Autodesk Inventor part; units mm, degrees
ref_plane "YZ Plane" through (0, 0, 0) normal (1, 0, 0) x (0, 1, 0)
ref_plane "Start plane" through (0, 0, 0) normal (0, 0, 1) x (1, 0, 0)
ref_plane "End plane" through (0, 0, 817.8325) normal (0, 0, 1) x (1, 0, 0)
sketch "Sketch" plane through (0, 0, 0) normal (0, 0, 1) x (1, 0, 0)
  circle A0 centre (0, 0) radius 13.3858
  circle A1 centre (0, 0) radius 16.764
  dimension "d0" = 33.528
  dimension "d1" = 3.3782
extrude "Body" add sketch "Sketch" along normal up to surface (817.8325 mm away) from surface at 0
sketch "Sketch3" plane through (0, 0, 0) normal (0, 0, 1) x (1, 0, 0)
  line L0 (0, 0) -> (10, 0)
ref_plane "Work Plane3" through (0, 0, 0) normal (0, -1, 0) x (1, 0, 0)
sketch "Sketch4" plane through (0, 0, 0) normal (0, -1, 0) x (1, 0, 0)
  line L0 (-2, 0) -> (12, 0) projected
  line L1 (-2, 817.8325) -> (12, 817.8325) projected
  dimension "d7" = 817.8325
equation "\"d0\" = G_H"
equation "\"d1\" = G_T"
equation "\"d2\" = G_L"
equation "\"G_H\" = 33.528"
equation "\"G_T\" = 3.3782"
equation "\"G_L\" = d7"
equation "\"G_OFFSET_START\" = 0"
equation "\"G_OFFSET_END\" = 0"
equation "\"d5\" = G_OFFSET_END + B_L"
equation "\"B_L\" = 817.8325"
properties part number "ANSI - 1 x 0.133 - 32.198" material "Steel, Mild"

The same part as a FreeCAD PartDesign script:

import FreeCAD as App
import Part
import Sketcher
from FreeCAD import Vector
Q = App.Units.Quantity

doc = App.newDocument("Part")
body = doc.addObject("PartDesign::Body", "Body")

sketch1 = body.newObject("Sketcher::SketchObject", "Sketch")
sketch1.AttachmentSupport = (doc.getObject("XY_Plane"), [""])
sketch1.MapMode = "FlatFace"
sketch1.addGeometry([
    Part.Circle(Vector(0, 0, 0), Vector(0, 0, 1), 17),
    Part.Circle(Vector(0, 0, 0), Vector(0, 0, 1), 13),
], False)
sketch1.addConstraint([
    Sketcher.Constraint("Coincident", 0, 3, -1, 1),
    Sketcher.Constraint("Coincident", 1, 3, -1, 1),
    Sketcher.Constraint("Diameter", 0, Q("1.32 in")),
    Sketcher.Constraint("Diameter", 1, Q("1.054 in")),
])
pad1 = body.newObject("PartDesign::Pad", "Pad")
pad1.Profile = sketch1
pad1.Length = 817.8325

doc.recompute()
